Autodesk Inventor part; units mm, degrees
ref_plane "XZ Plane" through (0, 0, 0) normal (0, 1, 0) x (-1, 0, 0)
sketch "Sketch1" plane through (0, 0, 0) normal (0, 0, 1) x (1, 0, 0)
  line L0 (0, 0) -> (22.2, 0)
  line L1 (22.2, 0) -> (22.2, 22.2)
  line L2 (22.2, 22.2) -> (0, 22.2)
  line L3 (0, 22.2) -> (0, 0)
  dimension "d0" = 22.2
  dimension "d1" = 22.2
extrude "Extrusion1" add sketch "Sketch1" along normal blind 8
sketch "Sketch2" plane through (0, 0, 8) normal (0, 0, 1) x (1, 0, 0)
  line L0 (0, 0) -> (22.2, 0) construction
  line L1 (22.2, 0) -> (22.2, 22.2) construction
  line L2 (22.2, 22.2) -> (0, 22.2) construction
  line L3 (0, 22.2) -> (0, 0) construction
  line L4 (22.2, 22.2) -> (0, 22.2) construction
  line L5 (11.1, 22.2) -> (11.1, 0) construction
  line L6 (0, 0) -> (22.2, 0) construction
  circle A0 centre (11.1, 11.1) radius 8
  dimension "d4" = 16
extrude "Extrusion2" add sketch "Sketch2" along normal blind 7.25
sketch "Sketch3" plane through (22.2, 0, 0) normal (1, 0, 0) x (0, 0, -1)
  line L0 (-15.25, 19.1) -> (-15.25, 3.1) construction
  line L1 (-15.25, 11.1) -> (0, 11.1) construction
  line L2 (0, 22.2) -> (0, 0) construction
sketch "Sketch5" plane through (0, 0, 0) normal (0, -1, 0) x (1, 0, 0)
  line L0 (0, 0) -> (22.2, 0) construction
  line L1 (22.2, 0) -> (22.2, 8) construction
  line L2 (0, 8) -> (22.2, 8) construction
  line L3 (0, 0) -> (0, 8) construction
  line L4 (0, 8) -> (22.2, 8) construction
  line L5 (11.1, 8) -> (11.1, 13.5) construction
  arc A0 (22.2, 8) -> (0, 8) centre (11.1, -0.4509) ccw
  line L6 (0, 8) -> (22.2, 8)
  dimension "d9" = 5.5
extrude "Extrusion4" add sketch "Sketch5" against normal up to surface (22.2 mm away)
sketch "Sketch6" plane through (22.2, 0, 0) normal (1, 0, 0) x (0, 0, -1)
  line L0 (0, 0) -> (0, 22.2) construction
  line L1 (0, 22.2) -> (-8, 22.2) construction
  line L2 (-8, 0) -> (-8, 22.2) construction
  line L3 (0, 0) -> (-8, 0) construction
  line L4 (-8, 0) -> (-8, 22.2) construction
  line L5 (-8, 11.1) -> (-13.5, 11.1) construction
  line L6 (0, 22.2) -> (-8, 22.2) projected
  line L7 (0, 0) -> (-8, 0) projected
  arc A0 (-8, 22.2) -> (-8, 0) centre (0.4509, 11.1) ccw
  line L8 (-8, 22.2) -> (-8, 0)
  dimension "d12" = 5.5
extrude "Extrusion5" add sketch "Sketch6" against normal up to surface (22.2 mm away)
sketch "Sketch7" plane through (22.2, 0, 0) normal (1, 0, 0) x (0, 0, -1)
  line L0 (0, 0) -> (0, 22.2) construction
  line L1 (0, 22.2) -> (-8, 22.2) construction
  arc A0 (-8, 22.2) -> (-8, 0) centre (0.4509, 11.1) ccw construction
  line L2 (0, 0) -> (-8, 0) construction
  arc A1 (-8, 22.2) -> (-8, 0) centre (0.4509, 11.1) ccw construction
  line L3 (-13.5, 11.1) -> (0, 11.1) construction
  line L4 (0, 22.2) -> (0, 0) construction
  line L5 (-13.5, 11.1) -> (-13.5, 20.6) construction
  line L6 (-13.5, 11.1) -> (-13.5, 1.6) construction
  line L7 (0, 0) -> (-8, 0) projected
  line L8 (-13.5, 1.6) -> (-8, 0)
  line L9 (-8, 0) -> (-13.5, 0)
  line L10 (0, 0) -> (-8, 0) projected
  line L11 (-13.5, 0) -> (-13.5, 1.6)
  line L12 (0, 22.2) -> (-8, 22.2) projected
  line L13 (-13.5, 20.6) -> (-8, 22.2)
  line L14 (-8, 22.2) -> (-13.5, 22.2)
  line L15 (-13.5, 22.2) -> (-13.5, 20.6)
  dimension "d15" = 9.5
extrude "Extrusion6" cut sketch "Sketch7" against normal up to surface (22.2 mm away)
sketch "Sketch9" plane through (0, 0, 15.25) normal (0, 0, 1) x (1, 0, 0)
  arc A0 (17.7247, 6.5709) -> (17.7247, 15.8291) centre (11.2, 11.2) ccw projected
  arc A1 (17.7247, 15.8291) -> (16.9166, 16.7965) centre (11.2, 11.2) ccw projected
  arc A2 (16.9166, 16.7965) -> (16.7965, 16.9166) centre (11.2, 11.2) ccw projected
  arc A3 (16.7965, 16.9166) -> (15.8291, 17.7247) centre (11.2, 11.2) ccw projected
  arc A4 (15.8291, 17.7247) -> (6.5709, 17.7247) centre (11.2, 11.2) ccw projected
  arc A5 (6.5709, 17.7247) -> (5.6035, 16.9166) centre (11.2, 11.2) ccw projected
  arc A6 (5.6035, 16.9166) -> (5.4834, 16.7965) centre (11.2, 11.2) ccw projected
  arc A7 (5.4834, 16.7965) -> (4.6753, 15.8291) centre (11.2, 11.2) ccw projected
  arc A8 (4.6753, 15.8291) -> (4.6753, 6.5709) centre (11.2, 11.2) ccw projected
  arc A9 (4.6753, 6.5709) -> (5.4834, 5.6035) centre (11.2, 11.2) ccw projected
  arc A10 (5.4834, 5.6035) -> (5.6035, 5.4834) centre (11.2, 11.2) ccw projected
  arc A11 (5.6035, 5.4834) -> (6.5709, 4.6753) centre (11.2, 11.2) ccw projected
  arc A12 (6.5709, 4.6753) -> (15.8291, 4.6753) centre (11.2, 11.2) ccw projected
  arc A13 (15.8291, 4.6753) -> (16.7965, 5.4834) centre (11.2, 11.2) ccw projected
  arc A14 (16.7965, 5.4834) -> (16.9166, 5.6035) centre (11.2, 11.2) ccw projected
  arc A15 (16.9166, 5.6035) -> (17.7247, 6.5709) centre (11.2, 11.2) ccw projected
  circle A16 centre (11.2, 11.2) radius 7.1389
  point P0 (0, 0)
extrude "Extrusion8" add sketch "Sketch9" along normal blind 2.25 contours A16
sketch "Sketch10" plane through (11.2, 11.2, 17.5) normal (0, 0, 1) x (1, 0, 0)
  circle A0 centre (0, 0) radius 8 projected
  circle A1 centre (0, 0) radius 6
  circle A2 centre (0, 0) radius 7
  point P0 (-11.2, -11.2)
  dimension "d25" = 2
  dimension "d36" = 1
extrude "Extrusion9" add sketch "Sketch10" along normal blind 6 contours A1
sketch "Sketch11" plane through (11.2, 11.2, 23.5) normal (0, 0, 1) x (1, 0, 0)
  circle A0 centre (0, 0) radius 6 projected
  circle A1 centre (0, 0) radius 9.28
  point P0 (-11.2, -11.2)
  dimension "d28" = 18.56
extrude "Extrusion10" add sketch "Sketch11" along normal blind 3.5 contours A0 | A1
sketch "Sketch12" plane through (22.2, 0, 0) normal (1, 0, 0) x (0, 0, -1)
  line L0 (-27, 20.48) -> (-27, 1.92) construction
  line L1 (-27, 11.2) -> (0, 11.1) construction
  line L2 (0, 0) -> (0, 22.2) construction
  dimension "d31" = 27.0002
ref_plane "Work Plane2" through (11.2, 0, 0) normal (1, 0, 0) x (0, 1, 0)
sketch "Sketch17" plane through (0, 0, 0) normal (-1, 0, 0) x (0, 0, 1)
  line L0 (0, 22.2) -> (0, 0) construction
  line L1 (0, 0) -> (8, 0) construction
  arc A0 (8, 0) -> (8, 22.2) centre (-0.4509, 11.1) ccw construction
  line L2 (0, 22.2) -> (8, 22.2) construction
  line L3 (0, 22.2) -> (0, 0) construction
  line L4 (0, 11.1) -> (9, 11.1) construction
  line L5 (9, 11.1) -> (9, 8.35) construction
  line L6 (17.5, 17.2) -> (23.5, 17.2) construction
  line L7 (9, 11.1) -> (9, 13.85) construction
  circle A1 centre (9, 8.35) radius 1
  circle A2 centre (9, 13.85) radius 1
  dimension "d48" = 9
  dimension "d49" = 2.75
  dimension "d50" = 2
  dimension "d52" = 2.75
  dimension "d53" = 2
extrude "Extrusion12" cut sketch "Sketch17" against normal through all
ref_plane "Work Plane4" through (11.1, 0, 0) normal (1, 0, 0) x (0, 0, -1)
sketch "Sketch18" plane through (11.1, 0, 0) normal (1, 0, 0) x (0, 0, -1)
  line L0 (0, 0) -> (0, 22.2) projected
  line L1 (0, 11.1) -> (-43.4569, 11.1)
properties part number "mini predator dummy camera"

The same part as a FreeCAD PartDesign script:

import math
import FreeCAD as App
import Part
import Sketcher
Q = App.Units.Quantity


def add_polygon(sketch, points):
    """Adds a closed chain of lines whose ends are joined by coincident constraints."""
    first, n = sketch.GeometryCount, len(points)
    for a, b in zip(points, points[1:] + points[:1]):
        sketch.addGeometry(Part.LineSegment(App.Vector(*a, 0), App.Vector(*b, 0)), False)
    for i in range(n):
        sketch.addConstraint(Sketcher.Constraint("Coincident", first + i, 2, first + (i + 1) % n, 1))

doc = App.newDocument("Part")
body = doc.addObject("PartDesign::Body", "Body")

sketch1 = body.newObject("Sketcher::SketchObject", "Sketch")
sketch1.AttachmentSupport = (doc.getObject("XY_Plane"), [""])
sketch1.MapMode = "FlatFace"
add_polygon(sketch1, [(0, 22.2), (0, 0), (22.2, 0), (22.2, 22.2)])
sketch1.addConstraint(Sketcher.Constraint("Vertical", 0))
sketch1.addConstraint(Sketcher.Constraint("Horizontal", 1))
sketch1.addConstraint(Sketcher.Constraint("Vertical", 2))
sketch1.addConstraint(Sketcher.Constraint("Horizontal", 3))
sketch1.addConstraint(Sketcher.Constraint("Coincident", 0, 2, -1, 1))
sketch1.addConstraint(Sketcher.Constraint("Equal", 3, 0))
sketch1.addConstraint(Sketcher.Constraint("DistanceX", 1, 1, 1, 2, Q("22.2 mm")))
pad1 = body.newObject("PartDesign::Pad", "Pad")
pad1.Profile = sketch1
pad1.Length = 8

sketch2 = body.newObject("Sketcher::SketchObject", "Sketch001")
sketch2.AttachmentSupport = (doc.getObject("XY_Plane"), [""])
sketch2.MapMode = "FlatFace"
sketch2.AttachmentOffset = App.Placement(App.Vector(0, 0, 8), App.Rotation())
sketch2.addGeometry(Part.Circle(App.Vector(11.1, 11.1, 0), App.Vector(0, 0, 1), 8), False)
sketch2.addConstraint(Sketcher.Constraint("Diameter", 0, Q("16 mm")))
sketch2.addConstraint(Sketcher.Constraint("DistanceX", -1, 1, 0, 3, Q("11.1 mm")))
sketch2.addConstraint(Sketcher.Constraint("DistanceY", -1, 1, 0, 3, Q("11.1 mm")))
pad2 = body.newObject("PartDesign::Pad", "Pad001")
pad2.Profile = sketch2
pad2.Length = 7.25

sketch3 = body.newObject("Sketcher::SketchObject", "Sketch002")
sketch3.AttachmentSupport = (doc.getObject("XZ_Plane"), [""])
sketch3.MapMode = "FlatFace"
sketch3.addGeometry(Part.LineSegment(App.Vector(0, 8, 0), App.Vector(22.2, 8, 0)), False)
sketch3.addGeometry(Part.ArcOfCircle(Part.Circle(App.Vector(11.1, -0.4509, 0), App.Vector(0, 0, 1), 13.950904), math.radians(37.283554), math.radians(142.716446)), False)
sketch3.addConstraint(Sketcher.Constraint("Coincident", 0, 1, 1, 2))
sketch3.addConstraint(Sketcher.Constraint("Coincident", 1, 1, 0, 2))
sketch3.addConstraint(Sketcher.Constraint("Horizontal", 0))
sketch3.addConstraint(Sketcher.Constraint("PointOnObject", 0, 1, -2))
sketch3.addConstraint(Sketcher.Constraint("DistanceX", 0, 1, 0, 2, Q("22.2 mm")))
sketch3.addConstraint(Sketcher.Constraint("DistanceY", -1, 1, 0, 1, Q("8 mm")))
sketch3.addConstraint(Sketcher.Constraint("Radius", 1, Q("13.951 mm")))
pad3 = body.newObject("PartDesign::Pad", "Pad002")
pad3.Profile = sketch3
pad3.Length = 22.2
pad3.Reversed = True

sketch4 = body.newObject("Sketcher::SketchObject", "Sketch003")
sketch4.AttachmentSupport = (doc.getObject("YZ_Plane"), [""])
sketch4.MapMode = "FlatFace"
sketch4.AttachmentOffset = App.Placement(App.Vector(0, 0, 22.2), App.Rotation())
sketch4.addGeometry(Part.LineSegment(App.Vector(0, 8, 0), App.Vector(22.2, 8, 0)), False)
sketch4.addGeometry(Part.ArcOfCircle(Part.Circle(App.Vector(11.1, -0.4509, 0), App.Vector(0, 0, 1), 13.950904), math.radians(37.283554), math.radians(142.716446)), False)
sketch4.addConstraint(Sketcher.Constraint("Coincident", 0, 1, 1, 2))
sketch4.addConstraint(Sketcher.Constraint("Coincident", 1, 1, 0, 2))
sketch4.addConstraint(Sketcher.Constraint("Horizontal", 0))
sketch4.addConstraint(Sketcher.Constraint("PointOnObject", 0, 1, -2))
sketch4.addConstraint(Sketcher.Constraint("DistanceX", 0, 1, 0, 2, Q("22.2 mm")))
sketch4.addConstraint(Sketcher.Constraint("DistanceY", -1, 1, 0, 1, Q("8 mm")))
sketch4.addConstraint(Sketcher.Constraint("Radius", 1, Q("13.951 mm")))
pad4 = body.newObject("PartDesign::Pad", "Pad003")
pad4.Profile = sketch4
pad4.Length = 22.2
pad4.Reversed = True

sketch5 = body.newObject("Sketcher::SketchObject", "Sketch004")
sketch5.AttachmentSupport = (doc.getObject("YZ_Plane"), [""])
sketch5.MapMode = "FlatFace"
sketch5.AttachmentOffset = App.Placement(App.Vector(0, 0, 22.2), App.Rotation())
add_polygon(sketch5, [(0, 8), (1.6, 13.5), (0, 13.5)])
add_polygon(sketch5, [(22.2, 13.5), (20.6, 13.5), (22.2, 8)])
sketch5.addConstraint(Sketcher.Constraint("Horizontal", 1))
sketch5.addConstraint(Sketcher.Constraint("Vertical", 2))
sketch5.addConstraint(Sketcher.Constraint("Horizontal", 3))
sketch5.addConstraint(Sketcher.Constraint("Vertical", 5))
sketch5.addConstraint(Sketcher.Constraint("PointOnObject", 1, 2, -2))
sketch5.addConstraint(Sketcher.Constraint("Horizontal", 1, 2, 3, 2))
sketch5.addConstraint(Sketcher.Constraint("Horizontal", 2, 2, 4, 2))
sketch5.addConstraint(Sketcher.Constraint("Equal", 1, 3))
sketch5.addConstraint(Sketcher.Constraint("DistanceX", 1, 2, 1, 1, Q("1.6 mm")))
sketch5.addConstraint(Sketcher.Constraint("DistanceY", 2, 2, 2, 1, Q("5.5 mm")))
sketch5.addConstraint(Sketcher.Constraint("DistanceY", -1, 1, 2, 2, Q("8 mm")))
sketch5.addConstraint(Sketcher.Constraint("DistanceX", 0, 2, 3, 2, Q("19 mm")))
pocket1 = body.newObject("PartDesign::Pocket", "Pocket")
pocket1.Profile = sketch5
pocket1.Length = 22.2

sketch6 = body.newObject("Sketcher::SketchObject", "Sketch005")
sketch6.AttachmentSupport = (doc.getObject("XY_Plane"), [""])
sketch6.MapMode = "FlatFace"
sketch6.AttachmentOffset = App.Placement(App.Vector(0, 0, 15.25), App.Rotation())
sketch6.addGeometry(Part.Circle(App.Vector(11.2, 11.2, 0), App.Vector(0, 0, 1), 7.1389), False)
sketch6.addConstraint(Sketcher.Constraint("Diameter", 0, Q("14.2778 mm")))
sketch6.addConstraint(Sketcher.Constraint("DistanceX", -1, 1, 0, 3, Q("11.2 mm")))
sketch6.addConstraint(Sketcher.Constraint("DistanceY", -1, 1, 0, 3, Q("11.2 mm")))
pad5 = body.newObject("PartDesign::Pad", "Pad004")
pad5.Profile = sketch6
pad5.Length = 2.25

sketch7 = body.newObject("Sketcher::SketchObject", "Sketch006")
sketch7.AttachmentSupport = (doc.getObject("XY_Plane"), [""])
sketch7.MapMode = "FlatFace"
sketch7.AttachmentOffset = App.Placement(App.Vector(0, 0, 17.5), App.Rotation())
sketch7.addGeometry(Part.Circle(App.Vector(11.2, 11.2, 0), App.Vector(0, 0, 1), 6), False)
sketch7.addConstraint(Sketcher.Constraint("Diameter", 0, Q("12 mm")))
sketch7.addConstraint(Sketcher.Constraint("DistanceX", -1, 1, 0, 3, Q("11.2 mm")))
sketch7.addConstraint(Sketcher.Constraint("DistanceY", -1, 1, 0, 3, Q("11.2 mm")))
pad6 = body.newObject("PartDesign::Pad", "Pad005")
pad6.Profile = sketch7
pad6.Length = 6

sketch8 = body.newObject("Sketcher::SketchObject", "Sketch007")
sketch8.AttachmentSupport = (doc.getObject("XY_Plane"), [""])
sketch8.MapMode = "FlatFace"
sketch8.AttachmentOffset = App.Placement(App.Vector(0, 0, 23.5), App.Rotation())
sketch8.addGeometry(Part.Circle(App.Vector(11.2, 11.2, 0), App.Vector(0, 0, 1), 9.28), False)
sketch8.addConstraint(Sketcher.Constraint("Diameter", 0, Q("18.56 mm")))
sketch8.addConstraint(Sketcher.Constraint("DistanceX", -1, 1, 0, 3, Q("11.2 mm")))
sketch8.addConstraint(Sketcher.Constraint("DistanceY", -1, 1, 0, 3, Q("11.2 mm")))
pad7 = body.newObject("PartDesign::Pad", "Pad006")
pad7.Profile = sketch8
pad7.Length = 3.5

sketch9 = body.newObject("Sketcher::SketchObject", "Sketch008")
sketch9.AttachmentSupport = (doc.getObject("YZ_Plane"), [""])
sketch9.MapMode = "FlatFace"
sketch9.addGeometry(Part.Circle(App.Vector(8.35, 9, 0), App.Vector(0, 0, 1), 1), False)
sketch9.addGeometry(Part.Circle(App.Vector(13.85, 9, 0), App.Vector(0, 0, 1), 1), False)
sketch9.addConstraint(Sketcher.Constraint("Equal", 0, 1))
sketch9.addConstraint(Sketcher.Constraint("Horizontal", 0, 3, 1, 3))
sketch9.addConstraint(Sketcher.Constraint("Diameter", 0, Q("2 mm")))
sketch9.addConstraint(Sketcher.Constraint("DistanceY", -1, 1, 0, 3, Q("9 mm")))
sketch9.addConstraint(Sketcher.Constraint("DistanceX", 0, 3, 1, 3, Q("5.5 mm")))
sketch9.addConstraint(Sketcher.Constraint("DistanceX", -1, 1, 0, 3, Q("8.35 mm")))
pocket2 = body.newObject("PartDesign::Pocket", "Pocket001")
pocket2.Profile = sketch9
pocket2.Type = "ThroughAll"
pocket2.Reversed = True

doc.recompute()
